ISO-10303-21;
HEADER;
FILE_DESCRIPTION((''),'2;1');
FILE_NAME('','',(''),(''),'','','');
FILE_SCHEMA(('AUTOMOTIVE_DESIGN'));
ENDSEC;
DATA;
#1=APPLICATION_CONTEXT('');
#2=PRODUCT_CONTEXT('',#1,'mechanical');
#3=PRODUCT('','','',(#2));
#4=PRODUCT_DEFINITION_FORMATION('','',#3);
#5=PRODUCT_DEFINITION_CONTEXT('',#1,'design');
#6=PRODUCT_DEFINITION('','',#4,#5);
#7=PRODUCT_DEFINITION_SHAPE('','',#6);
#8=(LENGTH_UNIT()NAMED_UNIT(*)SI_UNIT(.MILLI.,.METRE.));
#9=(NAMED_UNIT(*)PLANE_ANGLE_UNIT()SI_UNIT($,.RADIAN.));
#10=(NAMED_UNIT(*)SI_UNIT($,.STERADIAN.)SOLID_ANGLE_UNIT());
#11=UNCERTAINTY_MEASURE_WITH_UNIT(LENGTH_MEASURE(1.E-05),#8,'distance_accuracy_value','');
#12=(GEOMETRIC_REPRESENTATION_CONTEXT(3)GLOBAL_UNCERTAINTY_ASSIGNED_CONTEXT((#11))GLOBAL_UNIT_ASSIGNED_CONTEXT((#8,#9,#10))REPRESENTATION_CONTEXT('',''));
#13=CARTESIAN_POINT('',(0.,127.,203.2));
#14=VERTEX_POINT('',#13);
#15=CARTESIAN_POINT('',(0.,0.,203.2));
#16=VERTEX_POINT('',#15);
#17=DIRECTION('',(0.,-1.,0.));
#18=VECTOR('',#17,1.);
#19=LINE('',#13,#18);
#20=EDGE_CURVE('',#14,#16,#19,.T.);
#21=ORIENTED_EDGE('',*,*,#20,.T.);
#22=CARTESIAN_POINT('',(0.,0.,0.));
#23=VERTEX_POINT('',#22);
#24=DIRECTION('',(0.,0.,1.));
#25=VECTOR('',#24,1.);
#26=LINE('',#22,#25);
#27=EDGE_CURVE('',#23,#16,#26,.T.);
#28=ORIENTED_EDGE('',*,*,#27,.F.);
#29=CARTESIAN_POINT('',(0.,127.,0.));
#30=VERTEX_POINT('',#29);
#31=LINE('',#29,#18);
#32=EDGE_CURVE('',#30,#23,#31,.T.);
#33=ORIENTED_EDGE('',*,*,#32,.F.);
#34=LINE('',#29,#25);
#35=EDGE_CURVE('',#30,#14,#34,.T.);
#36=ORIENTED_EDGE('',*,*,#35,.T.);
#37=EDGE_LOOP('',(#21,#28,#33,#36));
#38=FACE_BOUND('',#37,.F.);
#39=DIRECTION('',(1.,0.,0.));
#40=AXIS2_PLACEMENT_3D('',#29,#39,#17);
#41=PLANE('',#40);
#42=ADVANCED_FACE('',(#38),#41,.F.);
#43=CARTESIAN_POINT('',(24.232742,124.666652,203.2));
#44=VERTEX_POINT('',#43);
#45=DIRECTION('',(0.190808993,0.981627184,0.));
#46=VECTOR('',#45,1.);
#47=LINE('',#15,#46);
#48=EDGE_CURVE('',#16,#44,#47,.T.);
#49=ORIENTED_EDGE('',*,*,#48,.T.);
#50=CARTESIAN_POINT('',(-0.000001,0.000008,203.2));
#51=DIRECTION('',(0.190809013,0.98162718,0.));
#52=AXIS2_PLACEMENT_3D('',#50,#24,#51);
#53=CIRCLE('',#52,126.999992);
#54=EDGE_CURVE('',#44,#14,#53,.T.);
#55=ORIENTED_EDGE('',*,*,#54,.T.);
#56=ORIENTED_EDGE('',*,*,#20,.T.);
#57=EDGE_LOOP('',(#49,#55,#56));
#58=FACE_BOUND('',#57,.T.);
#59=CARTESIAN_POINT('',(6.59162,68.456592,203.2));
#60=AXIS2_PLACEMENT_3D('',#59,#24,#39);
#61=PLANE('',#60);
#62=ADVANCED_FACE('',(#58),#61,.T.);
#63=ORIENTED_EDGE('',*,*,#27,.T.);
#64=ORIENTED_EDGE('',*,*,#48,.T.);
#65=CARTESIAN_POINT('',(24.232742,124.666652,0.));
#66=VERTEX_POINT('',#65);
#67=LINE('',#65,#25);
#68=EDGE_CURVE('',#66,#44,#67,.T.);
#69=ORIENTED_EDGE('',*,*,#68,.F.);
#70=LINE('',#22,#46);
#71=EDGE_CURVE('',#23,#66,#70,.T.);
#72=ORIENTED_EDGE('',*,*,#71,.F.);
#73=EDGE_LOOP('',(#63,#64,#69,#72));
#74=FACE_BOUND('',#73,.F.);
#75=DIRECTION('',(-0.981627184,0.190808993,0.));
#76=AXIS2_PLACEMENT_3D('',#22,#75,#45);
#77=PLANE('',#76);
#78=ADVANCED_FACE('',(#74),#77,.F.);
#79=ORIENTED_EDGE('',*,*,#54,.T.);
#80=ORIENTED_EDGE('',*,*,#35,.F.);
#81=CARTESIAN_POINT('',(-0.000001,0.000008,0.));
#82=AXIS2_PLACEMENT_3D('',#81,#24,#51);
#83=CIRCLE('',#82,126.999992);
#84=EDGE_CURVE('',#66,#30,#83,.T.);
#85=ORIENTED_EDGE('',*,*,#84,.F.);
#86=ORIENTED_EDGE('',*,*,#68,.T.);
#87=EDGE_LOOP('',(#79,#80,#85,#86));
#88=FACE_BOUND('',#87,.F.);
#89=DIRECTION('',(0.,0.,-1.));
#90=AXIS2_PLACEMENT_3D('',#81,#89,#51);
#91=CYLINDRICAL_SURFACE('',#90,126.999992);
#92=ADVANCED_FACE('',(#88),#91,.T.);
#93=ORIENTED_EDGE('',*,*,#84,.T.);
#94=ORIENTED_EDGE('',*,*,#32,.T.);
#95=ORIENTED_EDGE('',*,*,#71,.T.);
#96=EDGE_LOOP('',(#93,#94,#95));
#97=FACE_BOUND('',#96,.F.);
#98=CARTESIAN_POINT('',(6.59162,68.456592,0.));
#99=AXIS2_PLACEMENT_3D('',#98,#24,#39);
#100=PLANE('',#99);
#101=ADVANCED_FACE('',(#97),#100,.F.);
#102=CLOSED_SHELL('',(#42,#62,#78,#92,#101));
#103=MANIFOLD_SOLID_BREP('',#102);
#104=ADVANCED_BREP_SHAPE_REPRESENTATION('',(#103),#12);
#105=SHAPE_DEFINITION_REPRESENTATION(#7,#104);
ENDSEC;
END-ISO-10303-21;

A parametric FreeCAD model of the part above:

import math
import FreeCAD as App
import Part
import Sketcher
from FreeCAD import Vector
Q = App.Units.Quantity

doc = App.newDocument("Part")
params = doc.addObject("Spreadsheet::Sheet", "Params")
for row, (alias, value) in enumerate([
    ("sketch1_height", "5 in"),
    ("pad1_length", "8 in"),
], start=1):
    params.set(f"A{row}", alias)
    params.set(f"B{row}", "=" + value)
    params.setAlias(f"B{row}", alias)

body = doc.addObject("PartDesign::Body", "Body")

# Sketch on XY plane
sketch1 = doc.addObject("Sketcher::SketchObject", "Sketch")
body.addObject(sketch1)
sketch1.AttachmentSupport = (doc.XY_Plane, [""])
sketch1.MapMode = "FlatFace"
sketch1.addGeometry(Part.LineSegment(Vector(0, 127, 0), Vector(0, 0, 0)), False)
sketch1.addGeometry(Part.LineSegment(Vector(0, 0, 0), Vector(24, 125, 0)), False)
sketch1.addGeometry(Part.ArcOfCircle(Part.Circle(Vector(0, 0, 0), Vector(0, 0, 1), 127), math.radians(79), math.radians(90)), False)
sketch1.addConstraint(Sketcher.Constraint("Coincident", 0, 2, 1, 1))
sketch1.addConstraint(Sketcher.Constraint("Coincident", 1, 2, 2, 1))
sketch1.addConstraint(Sketcher.Constraint("Coincident", 2, 2, 0, 1))
sketch1.addConstraint(Sketcher.Constraint("Vertical", 0))
sketch1.addConstraint(Sketcher.Constraint("Coincident", 2, 3, -1, 1))
sketch1.addConstraint(Sketcher.Constraint("Coincident", 0, 2, -1, 1))
sketch1.addConstraint(Sketcher.Constraint("DistanceY", 0, 2, 0, 1, Q("5 in")))
sketch1.addConstraint(Sketcher.Constraint("Angle", 1, Q("79 deg")))
sketch1.setExpression("Constraints[6]", "Params.sketch1_height")
pad1 = doc.addObject("PartDesign::Pad", "Pad")
body.addObject(pad1)
pad1.Profile = sketch1
pad1.setExpression("Length", "Params.pad1_length")

doc.recompute()
